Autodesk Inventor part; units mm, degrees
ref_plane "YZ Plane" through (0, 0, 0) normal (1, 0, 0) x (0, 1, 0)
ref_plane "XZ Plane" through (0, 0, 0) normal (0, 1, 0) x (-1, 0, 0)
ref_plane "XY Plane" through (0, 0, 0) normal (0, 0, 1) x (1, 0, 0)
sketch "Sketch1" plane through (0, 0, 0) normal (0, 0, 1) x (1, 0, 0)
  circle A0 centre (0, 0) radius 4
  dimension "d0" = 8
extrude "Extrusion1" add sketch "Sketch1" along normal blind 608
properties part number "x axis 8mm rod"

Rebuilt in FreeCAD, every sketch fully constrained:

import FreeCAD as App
import Part
import Sketcher
Q = App.Units.Quantity

doc = App.newDocument("Part")
body = doc.addObject("PartDesign::Body", "Body")

# Sketch on XY plane
sketch1 = body.newObject("Sketcher::SketchObject", "Sketch")
sketch1.AttachmentSupport = (doc.getObject("XY_Plane"), [""])
sketch1.MapMode = "FlatFace"
sketch1.addGeometry(Part.Circle(App.Vector(0, 0, 0), App.Vector(0, 0, 1), 4), False)
sketch1.addConstraint(Sketcher.Constraint("Coincident", 0, 3, -1, 1))
sketch1.addConstraint(Sketcher.Constraint("Diameter", 0, Q("8 mm")))
pad1 = body.newObject("PartDesign::Pad", "Pad")
pad1.Profile = sketch1
pad1.Length = 608

doc.recompute()
